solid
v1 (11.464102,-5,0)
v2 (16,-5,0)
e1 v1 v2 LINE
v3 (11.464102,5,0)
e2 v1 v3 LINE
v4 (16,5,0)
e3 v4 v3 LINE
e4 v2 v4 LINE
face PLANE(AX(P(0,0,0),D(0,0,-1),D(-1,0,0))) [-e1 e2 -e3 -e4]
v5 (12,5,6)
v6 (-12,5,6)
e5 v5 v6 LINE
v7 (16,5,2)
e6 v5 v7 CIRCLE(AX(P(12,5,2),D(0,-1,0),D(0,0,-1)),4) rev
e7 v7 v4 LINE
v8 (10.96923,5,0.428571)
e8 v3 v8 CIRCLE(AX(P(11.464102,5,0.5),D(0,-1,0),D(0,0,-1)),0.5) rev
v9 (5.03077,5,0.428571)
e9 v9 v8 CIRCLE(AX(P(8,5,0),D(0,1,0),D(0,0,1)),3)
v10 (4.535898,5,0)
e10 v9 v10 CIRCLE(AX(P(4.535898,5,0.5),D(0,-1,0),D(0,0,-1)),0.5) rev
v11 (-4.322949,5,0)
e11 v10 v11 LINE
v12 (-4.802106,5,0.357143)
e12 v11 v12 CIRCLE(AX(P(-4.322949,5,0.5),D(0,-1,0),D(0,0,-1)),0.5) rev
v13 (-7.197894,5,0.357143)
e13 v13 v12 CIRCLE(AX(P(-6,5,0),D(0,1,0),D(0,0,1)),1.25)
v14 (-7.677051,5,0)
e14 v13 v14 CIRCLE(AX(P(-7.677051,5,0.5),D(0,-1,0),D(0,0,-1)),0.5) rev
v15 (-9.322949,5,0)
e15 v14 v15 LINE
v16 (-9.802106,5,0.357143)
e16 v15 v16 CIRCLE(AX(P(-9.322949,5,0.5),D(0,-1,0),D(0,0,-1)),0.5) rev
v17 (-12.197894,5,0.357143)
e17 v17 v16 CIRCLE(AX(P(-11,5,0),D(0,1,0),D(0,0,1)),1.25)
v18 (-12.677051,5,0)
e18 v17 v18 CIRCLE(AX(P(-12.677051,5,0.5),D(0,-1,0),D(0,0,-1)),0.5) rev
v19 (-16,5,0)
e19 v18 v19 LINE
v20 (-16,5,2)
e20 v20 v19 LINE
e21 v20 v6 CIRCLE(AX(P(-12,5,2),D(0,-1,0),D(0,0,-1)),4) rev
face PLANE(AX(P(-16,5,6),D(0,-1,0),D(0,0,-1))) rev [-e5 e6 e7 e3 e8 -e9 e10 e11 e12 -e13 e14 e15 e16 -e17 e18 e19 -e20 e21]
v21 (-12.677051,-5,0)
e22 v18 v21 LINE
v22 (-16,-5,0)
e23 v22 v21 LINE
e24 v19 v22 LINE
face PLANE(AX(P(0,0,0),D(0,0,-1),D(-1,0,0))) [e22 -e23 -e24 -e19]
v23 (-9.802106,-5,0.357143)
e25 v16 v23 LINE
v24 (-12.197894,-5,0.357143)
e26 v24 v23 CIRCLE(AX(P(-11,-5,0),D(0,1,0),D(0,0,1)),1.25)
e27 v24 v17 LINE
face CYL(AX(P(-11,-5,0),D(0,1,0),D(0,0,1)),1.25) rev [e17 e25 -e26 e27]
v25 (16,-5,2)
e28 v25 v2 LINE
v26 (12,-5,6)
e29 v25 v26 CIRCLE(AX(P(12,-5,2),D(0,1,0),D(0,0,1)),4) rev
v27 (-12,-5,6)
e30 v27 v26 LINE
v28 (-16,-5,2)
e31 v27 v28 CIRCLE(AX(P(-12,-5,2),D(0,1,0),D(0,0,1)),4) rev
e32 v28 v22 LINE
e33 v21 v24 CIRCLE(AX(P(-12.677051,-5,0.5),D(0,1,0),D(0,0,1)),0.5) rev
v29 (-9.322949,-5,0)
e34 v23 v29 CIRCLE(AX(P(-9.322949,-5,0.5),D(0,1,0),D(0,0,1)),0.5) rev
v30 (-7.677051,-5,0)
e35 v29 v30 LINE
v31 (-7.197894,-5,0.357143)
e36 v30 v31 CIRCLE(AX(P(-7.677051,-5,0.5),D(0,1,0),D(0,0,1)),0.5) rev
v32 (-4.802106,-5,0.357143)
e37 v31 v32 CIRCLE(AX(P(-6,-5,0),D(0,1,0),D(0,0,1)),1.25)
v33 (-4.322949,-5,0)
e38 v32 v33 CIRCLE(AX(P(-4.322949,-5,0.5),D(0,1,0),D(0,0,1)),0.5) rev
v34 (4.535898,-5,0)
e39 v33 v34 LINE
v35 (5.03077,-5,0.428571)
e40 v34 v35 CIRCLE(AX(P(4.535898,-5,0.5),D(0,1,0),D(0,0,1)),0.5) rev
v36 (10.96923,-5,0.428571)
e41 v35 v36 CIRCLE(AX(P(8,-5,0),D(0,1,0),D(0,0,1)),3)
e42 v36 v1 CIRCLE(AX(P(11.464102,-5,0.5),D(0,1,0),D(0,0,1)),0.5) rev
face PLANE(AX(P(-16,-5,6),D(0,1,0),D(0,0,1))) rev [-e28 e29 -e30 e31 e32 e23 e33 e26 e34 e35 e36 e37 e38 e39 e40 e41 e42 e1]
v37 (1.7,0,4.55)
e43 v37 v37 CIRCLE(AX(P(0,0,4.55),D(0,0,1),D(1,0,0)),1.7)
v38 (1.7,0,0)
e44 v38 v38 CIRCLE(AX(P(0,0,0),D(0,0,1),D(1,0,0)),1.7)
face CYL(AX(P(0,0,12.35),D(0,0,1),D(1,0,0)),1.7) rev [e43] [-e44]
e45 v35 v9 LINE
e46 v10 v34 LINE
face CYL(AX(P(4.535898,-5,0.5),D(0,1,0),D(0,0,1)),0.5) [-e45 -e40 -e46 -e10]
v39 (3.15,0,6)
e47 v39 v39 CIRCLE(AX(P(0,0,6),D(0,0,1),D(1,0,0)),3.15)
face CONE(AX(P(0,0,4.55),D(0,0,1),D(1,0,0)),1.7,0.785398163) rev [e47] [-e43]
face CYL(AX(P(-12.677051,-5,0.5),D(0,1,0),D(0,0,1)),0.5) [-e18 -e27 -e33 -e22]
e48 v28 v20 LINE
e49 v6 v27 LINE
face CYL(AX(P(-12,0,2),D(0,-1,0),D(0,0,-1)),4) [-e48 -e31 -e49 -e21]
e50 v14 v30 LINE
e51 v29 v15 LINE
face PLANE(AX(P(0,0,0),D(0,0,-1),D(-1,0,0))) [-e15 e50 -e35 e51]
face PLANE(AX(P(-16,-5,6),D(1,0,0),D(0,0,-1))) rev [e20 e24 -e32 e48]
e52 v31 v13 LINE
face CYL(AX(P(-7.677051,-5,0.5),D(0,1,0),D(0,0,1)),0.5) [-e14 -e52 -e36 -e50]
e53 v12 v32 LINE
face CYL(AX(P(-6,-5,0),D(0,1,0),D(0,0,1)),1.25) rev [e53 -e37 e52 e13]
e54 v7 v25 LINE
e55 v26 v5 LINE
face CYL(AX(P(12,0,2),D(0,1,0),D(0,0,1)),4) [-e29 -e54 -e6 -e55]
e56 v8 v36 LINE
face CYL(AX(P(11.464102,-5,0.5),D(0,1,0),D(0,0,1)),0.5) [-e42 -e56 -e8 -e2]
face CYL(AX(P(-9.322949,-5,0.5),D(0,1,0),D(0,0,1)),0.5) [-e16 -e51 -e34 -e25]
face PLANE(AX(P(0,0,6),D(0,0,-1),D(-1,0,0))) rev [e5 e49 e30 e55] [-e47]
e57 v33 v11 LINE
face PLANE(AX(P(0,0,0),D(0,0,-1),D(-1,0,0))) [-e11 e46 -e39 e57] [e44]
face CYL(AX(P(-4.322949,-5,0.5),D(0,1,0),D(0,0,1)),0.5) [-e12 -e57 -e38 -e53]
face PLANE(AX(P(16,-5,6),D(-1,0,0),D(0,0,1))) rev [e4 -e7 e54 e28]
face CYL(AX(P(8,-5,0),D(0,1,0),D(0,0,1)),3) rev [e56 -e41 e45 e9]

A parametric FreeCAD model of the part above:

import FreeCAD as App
import Part
import Sketcher
Q = App.Units.Quantity


def edges_at(feature, points):
    """Names of the edges that pass closest to the given points."""
    edges = feature.Shape.Edges
    near = lambda p: min(range(len(edges)), key=lambda i: edges[i].distToShape(Part.Vertex(*p))[0])
    return sorted({f"Edge{near(p) + 1}" for p in points})


def add_polygon(sketch, points):
    """Adds a closed chain of lines whose ends are joined by coincident constraints."""
    first, n = sketch.GeometryCount, len(points)
    for a, b in zip(points, points[1:] + points[:1]):
        sketch.addGeometry(Part.LineSegment(App.Vector(*a, 0), App.Vector(*b, 0)), False)
    for i in range(n):
        sketch.addConstraint(Sketcher.Constraint("Coincident", first + i, 2, first + (i + 1) % n, 1))

doc = App.newDocument("Part")
body = doc.addObject("PartDesign::Body", "Body")

# Sketch on XY plane
sketch1 = doc.addObject("Sketcher::SketchObject", "Sketch")
body.addObject(sketch1)
sketch1.AttachmentSupport = (doc.XY_Plane, [""])
sketch1.MapMode = "FlatFace"
add_polygon(sketch1, [(-16, 5), (-16, -5), (16, -5), (16, 5)])  # lines 0-3
sketch1.addConstraint([
    Sketcher.Constraint("Vertical", 0),
    Sketcher.Constraint("Horizontal", 1),
    Sketcher.Constraint("Vertical", 2),
    Sketcher.Constraint("Horizontal", 3),
    Sketcher.Constraint("Symmetric", 0, 2, 2, 2, -1, 1),
    Sketcher.Constraint("DistanceX", 1, 1, 1, 2, 32.0),
    Sketcher.Constraint("DistanceY", 0, 2, 0, 1, 10.0),
])
pad1 = doc.addObject("PartDesign::Pad", "Pad")
body.addObject(pad1)
pad1.Profile = sketch1
pad1.Length = 6
doc.recompute()

fillet = doc.addObject("PartDesign::Fillet", "Fillet")
body.addObject(fillet)
fillet.Base = (pad1, edges_at(pad1, [(-16, 0, 6), (16, 0, 6)]))
fillet.Radius = 4

# Sketch on XZ plane
sketch2 = doc.addObject("Sketcher::SketchObject", "Sketch001")
body.addObject(sketch2)
sketch2.AttachmentSupport = (doc.XZ_Plane, [""])
sketch2.MapMode = "FlatFace"
add_polygon(sketch2, [(0, 6), (3.1, 6), (1.7, 4.5), (1.7, 0), (0, 0)])  # lines 0-4
sketch2.addConstraint([
    Sketcher.Constraint("Horizontal", 0),
    Sketcher.Constraint("Vertical", 2),
    Sketcher.Constraint("Horizontal", 3),
    Sketcher.Constraint("Vertical", 4),
    Sketcher.Constraint("Coincident", 3, 2, -1, 1),
    Sketcher.Constraint("DistanceY", 4, 1, 4, 2, 6.0),
    Sketcher.Constraint("Angle", 1, Q("-135 deg")),
    Sketcher.Constraint("DistanceX", 3, 2, 3, 1, 1.7),
    Sketcher.Constraint("DistanceX", 0, 1, 0, 2, 3.15),
])
groove = doc.addObject("PartDesign::Groove", "Groove")
body.addObject(groove)
groove.Profile = sketch2
groove.ReferenceAxis = (sketch2, ["V_Axis"])
groove.Angle = 360

# Sketch on XZ plane
sketch3 = doc.addObject("Sketcher::SketchObject", "Sketch002")
body.addObject(sketch3)
sketch3.AttachmentSupport = (doc.XZ_Plane, [""])
sketch3.MapMode = "FlatFace"
sketch3.addGeometry([
    Part.Circle(App.Vector(-11, 0, 0), App.Vector(0, 0, 1), 1.2),
    Part.Circle(App.Vector(-6, 0, 0), App.Vector(0, 0, 1), 1.2),
    Part.Circle(App.Vector(8, 0, 0), App.Vector(0, 0, 1), 3),
], False)
sketch3.addConstraint([
    Sketcher.Constraint("Equal", 0, 1),
    Sketcher.Constraint("PointOnObject", 0, 3, -1),
    Sketcher.Constraint("PointOnObject", 1, 3, -1),
    Sketcher.Constraint("PointOnObject", 2, 3, -1),
    Sketcher.Constraint("Diameter", 2, 6.0),
    Sketcher.Constraint("Diameter", 0, 2.5),
    Sketcher.Constraint("DistanceX", 0, 3, -1, 1, 11.0),
    Sketcher.Constraint("DistanceX", 1, 3, -1, 1, 6.0),
    Sketcher.Constraint("DistanceX", -1, 1, 2, 3, 8.0),
])
pocket1 = doc.addObject("PartDesign::Pocket", "Pocket")
body.addObject(pocket1)
pocket1.Profile = sketch3
pocket1.Type = "ThroughAll"
pocket1.Midplane = True
doc.recompute()

fillet2 = doc.addObject("PartDesign::Fillet", "Fillet001")
body.addObject(fillet2)
fillet2.Base = (pocket1, edges_at(pocket1, [
    (11, -2.5, 0),
    (5, 2.5, 0),
    (-4.75, -2.5, 0),
    (-7.25, 2.5, 0),
    (-9.75, -2.5, 0),
    (-12.25, 2.5, 0),
]))
fillet2.Radius = 0.5

doc.recompute()
